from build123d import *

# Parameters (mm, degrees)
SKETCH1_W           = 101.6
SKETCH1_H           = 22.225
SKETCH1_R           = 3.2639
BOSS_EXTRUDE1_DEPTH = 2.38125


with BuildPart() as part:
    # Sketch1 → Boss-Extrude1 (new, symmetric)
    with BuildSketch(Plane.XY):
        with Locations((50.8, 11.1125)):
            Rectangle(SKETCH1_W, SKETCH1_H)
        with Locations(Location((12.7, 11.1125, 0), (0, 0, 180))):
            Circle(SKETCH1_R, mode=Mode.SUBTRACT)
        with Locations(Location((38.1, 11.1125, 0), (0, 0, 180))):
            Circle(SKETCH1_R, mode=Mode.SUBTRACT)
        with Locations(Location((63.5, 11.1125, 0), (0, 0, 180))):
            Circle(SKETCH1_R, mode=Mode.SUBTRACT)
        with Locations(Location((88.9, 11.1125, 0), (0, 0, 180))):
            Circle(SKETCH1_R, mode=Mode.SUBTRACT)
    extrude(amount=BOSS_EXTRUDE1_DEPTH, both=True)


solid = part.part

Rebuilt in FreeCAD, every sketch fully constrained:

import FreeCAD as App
import Part
import Sketcher
from FreeCAD import Vector
Q = App.Units.Quantity


def add_polygon(sketch, points):
    """Adds a closed chain of lines whose ends are joined by coincident constraints."""
    first, n = sketch.GeometryCount, len(points)
    for a, b in zip(points, points[1:] + points[:1]):
        sketch.addGeometry(Part.LineSegment(App.Vector(*a, 0), App.Vector(*b, 0)), False)
    for i in range(n):
        sketch.addConstraint(Sketcher.Constraint("Coincident", first + i, 2, first + (i + 1) % n, 1))

doc = App.newDocument("Part")
params = doc.addObject("Spreadsheet::Sheet", "Params")
for row, (alias, value) in enumerate([
    ("sketch1_width", "4 in"),
    ("sketch1_diameter", "0.257 in"),
    ("sketch1_height", "0.875 in"),
    ("pad1_length", "0.1875 in"),
], start=1):
    params.set(f"A{row}", alias)
    params.set(f"B{row}", "=" + value)
    params.setAlias(f"B{row}", alias)

body = doc.addObject("PartDesign::Body", "Body")

sketch1 = doc.addObject("Sketcher::SketchObject", "Sketch")
body.addObject(sketch1)
sketch1.AttachmentSupport = (doc.XY_Plane, [""])
sketch1.MapMode = "FlatFace"
add_polygon(sketch1, [(0, 22.225), (0, 0), (101.6, 0), (101.6, 22.225)])
sketch1.addGeometry(Part.Circle(Vector(12.7, 11.1125, 0), Vector(0, 0, 1), 3.2639), False)
sketch1.addGeometry(Part.Circle(Vector(38.1, 11.1125, 0), Vector(0, 0, 1), 3.2639), False)
sketch1.addGeometry(Part.Circle(Vector(63.5, 11.1125, 0), Vector(0, 0, 1), 3.2639), False)
sketch1.addGeometry(Part.Circle(Vector(88.9, 11.1125, 0), Vector(0, 0, 1), 3.2639), False)
sketch1.addConstraint([
    Sketcher.Constraint("Vertical", 0),
    Sketcher.Constraint("Horizontal", 1),
    Sketcher.Constraint("Vertical", 2),
    Sketcher.Constraint("Horizontal", 3),
    Sketcher.Constraint("Coincident", 0, 2, -1, 1),
    Sketcher.Constraint("Equal", 4, 5),
    Sketcher.Constraint("Equal", 5, 6),
    Sketcher.Constraint("Equal", 6, 7),
    Sketcher.Constraint("Horizontal", 4, 3, 5, 3),
    Sketcher.Constraint("Horizontal", 5, 3, 6, 3),
    Sketcher.Constraint("Horizontal", 6, 3, 7, 3),
    Sketcher.Constraint("DistanceX", 1, 1, 1, 2, Q("4 in")),
    Sketcher.Constraint("Diameter", 4, Q("0.257 in")),
    Sketcher.Constraint("DistanceX", 4, 3, 5, 3, Q("1 in")),
    Sketcher.Constraint("DistanceX", 5, 3, 6, 3, Q("1 in")),
    Sketcher.Constraint("DistanceX", 6, 3, 7, 3, Q("1 in")),
    Sketcher.Constraint("DistanceX", -1, 1, 4, 3, Q("0.5 in")),
    Sketcher.Constraint("DistanceY", 0, 2, 0, 1, Q("0.875 in")),
    Sketcher.Constraint("DistanceY", -1, 1, 4, 3, Q("0.4375 in")),
])
sketch1.setExpression("Constraints[15]", "Params.sketch1_width")
sketch1.setExpression("Constraints[16]", "Params.sketch1_diameter")
sketch1.setExpression("Constraints[21]", "Params.sketch1_height")
pad1 = doc.addObject("PartDesign::Pad", "Pad")
body.addObject(pad1)
pad1.Profile = sketch1
pad1.setExpression("Length", "Params.pad1_length")
pad1.Midplane = True

doc.recompute()
